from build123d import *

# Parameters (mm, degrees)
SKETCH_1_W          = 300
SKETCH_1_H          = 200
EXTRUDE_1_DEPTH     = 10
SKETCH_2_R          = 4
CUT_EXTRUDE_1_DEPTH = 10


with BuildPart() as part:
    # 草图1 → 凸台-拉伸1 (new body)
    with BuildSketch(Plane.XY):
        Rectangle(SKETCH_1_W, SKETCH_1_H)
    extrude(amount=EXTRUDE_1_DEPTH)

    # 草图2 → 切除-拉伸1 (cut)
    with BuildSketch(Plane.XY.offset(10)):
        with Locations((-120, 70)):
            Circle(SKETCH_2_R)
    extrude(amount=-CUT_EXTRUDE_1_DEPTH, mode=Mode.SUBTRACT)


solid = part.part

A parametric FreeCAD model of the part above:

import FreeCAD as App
import Part
import Sketcher
from FreeCAD import Vector
Q = App.Units.Quantity

doc = App.newDocument("Part")
params = doc.addObject("Spreadsheet::Sheet", "Params")
for row, (alias, value) in enumerate([
    ("sketch1_width", "300 mm"),
    ("sketch1_height", "200 mm"),
    ("pad1_length", "10 mm"),
    ("sketch2_diameter", "8 mm"),
    ("pocket1_length", "10 mm"),
], start=1):
    params.set(f"A{row}", alias)
    params.set(f"B{row}", "=" + value)
    params.setAlias(f"B{row}", alias)

body = doc.addObject("PartDesign::Body", "Body")

# Sketch on XY plane
sketch1 = doc.addObject("Sketcher::SketchObject", "Sketch")
body.addObject(sketch1)
sketch1.AttachmentSupport = (doc.XY_Plane, [""])
sketch1.MapMode = "FlatFace"
sketch1.addGeometry([
    Part.LineSegment(Vector(-150, 100, 0), Vector(-150, -100, 0)),
    Part.LineSegment(Vector(-150, -100, 0), Vector(150, -100, 0)),
    Part.LineSegment(Vector(150, -100, 0), Vector(150, 100, 0)),
    Part.LineSegment(Vector(150, 100, 0), Vector(-150, 100, 0)),
], False)
sketch1.addConstraint([
    Sketcher.Constraint("Coincident", 0, 2, 1, 1),
    Sketcher.Constraint("Coincident", 1, 2, 2, 1),
    Sketcher.Constraint("Coincident", 2, 2, 3, 1),
    Sketcher.Constraint("Coincident", 3, 2, 0, 1),
    Sketcher.Constraint("Vertical", 0),
    Sketcher.Constraint("Horizontal", 1),
    Sketcher.Constraint("Vertical", 2),
    Sketcher.Constraint("Horizontal", 3),
    Sketcher.Constraint("Symmetric", 0, 2, 2, 2, -1, 1),
    Sketcher.Constraint("DistanceX", 1, 1, 1, 2, Q("300 mm")),
    Sketcher.Constraint("DistanceY", 0, 2, 0, 1, Q("200 mm")),
])
sketch1.setExpression("Constraints[9]", "Params.sketch1_width")
sketch1.setExpression("Constraints[10]", "Params.sketch1_height")
pad1 = doc.addObject("PartDesign::Pad", "Pad")
body.addObject(pad1)
pad1.Profile = sketch1
pad1.setExpression("Length", "Params.pad1_length")

# Sketch on XY plane
sketch2 = doc.addObject("Sketcher::SketchObject", "Sketch001")
body.addObject(sketch2)
sketch2.AttachmentSupport = (doc.XY_Plane, [""])
sketch2.MapMode = "FlatFace"
sketch2.AttachmentOffset = App.Placement(Vector(0, 0, 10), App.Rotation())
sketch2.addGeometry(Part.Circle(Vector(-120, 70, 0), Vector(0, 0, 1), 4), False)
sketch2.addConstraint([
    Sketcher.Constraint("Diameter", 0, Q("8 mm")),
    Sketcher.Constraint("DistanceX", 0, 3, -1, 1, Q("120 mm")),
    Sketcher.Constraint("DistanceY", -1, 1, 0, 3, Q("70 mm")),
])
sketch2.setExpression("Constraints[0]", "Params.sketch2_diameter")
pocket1 = doc.addObject("PartDesign::Pocket", "Pocket")
body.addObject(pocket1)
pocket1.Profile = sketch2
pocket1.setExpression("Length", "Params.pocket1_length")

doc.recompute()
